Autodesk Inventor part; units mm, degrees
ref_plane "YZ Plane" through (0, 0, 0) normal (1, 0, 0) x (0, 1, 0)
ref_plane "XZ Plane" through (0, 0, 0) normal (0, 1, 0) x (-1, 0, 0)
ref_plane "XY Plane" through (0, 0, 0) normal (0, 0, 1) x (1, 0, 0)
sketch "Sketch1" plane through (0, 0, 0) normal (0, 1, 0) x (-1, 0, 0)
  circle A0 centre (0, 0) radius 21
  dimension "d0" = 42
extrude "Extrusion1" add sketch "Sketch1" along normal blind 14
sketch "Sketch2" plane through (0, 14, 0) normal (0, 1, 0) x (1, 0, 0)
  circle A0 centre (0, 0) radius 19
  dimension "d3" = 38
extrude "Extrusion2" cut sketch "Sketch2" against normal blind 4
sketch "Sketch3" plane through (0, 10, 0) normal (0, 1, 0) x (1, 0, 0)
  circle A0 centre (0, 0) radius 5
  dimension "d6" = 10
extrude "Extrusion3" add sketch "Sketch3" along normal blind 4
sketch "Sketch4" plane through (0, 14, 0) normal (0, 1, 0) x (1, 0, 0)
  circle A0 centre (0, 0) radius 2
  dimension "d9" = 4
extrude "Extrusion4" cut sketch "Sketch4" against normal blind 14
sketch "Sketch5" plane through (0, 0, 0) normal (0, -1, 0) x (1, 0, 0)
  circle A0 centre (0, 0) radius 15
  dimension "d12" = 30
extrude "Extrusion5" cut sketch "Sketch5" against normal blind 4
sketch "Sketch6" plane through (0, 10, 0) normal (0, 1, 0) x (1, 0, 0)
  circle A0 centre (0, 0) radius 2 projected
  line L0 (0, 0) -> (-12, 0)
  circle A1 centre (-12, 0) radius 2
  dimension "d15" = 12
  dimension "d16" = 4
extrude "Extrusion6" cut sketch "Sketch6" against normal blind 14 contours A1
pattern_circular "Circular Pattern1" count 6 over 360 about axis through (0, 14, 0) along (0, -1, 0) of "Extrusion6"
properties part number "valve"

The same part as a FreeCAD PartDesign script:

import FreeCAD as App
import Part
import Sketcher
Q = App.Units.Quantity

doc = App.newDocument("Part")
body = doc.addObject("PartDesign::Body", "Body")

sketch1 = doc.addObject("Sketcher::SketchObject", "Sketch")
body.addObject(sketch1)
sketch1.AttachmentSupport = (doc.XZ_Plane, [""])
sketch1.MapMode = "FlatFace"
sketch1.addGeometry(Part.Circle(App.Vector(0, 0, 0), App.Vector(0, 0, 1), 21), False)
sketch1.addConstraint([
    Sketcher.Constraint("Coincident", 0, 3, -1, 1),
    Sketcher.Constraint("Diameter", 0, Q("42 mm")),
])
pad1 = doc.addObject("PartDesign::Pad", "Pad")
body.addObject(pad1)
pad1.Profile = sketch1
pad1.Length = 14
pad1.Reversed = True

sketch2 = doc.addObject("Sketcher::SketchObject", "Sketch001")
body.addObject(sketch2)
sketch2.AttachmentSupport = (doc.XZ_Plane, [""])
sketch2.MapMode = "FlatFace"
sketch2.AttachmentOffset = App.Placement(App.Vector(0, 0, -14), App.Rotation())
sketch2.addGeometry(Part.Circle(App.Vector(0, 0, 0), App.Vector(0, 0, 1), 19), False)
sketch2.addConstraint([
    Sketcher.Constraint("Coincident", 0, 3, -1, 1),
    Sketcher.Constraint("Diameter", 0, Q("38 mm")),
])
pocket1 = doc.addObject("PartDesign::Pocket", "Pocket")
body.addObject(pocket1)
pocket1.Profile = sketch2
pocket1.Length = 4
pocket1.Reversed = True

sketch3 = doc.addObject("Sketcher::SketchObject", "Sketch002")
body.addObject(sketch3)
sketch3.AttachmentSupport = (doc.XZ_Plane, [""])
sketch3.MapMode = "FlatFace"
sketch3.AttachmentOffset = App.Placement(App.Vector(0, 0, -10), App.Rotation())
sketch3.addGeometry(Part.Circle(App.Vector(0, 0, 0), App.Vector(0, 0, 1), 5), False)
sketch3.addConstraint([
    Sketcher.Constraint("Coincident", 0, 3, -1, 1),
    Sketcher.Constraint("Diameter", 0, Q("10 mm")),
])
pad2 = doc.addObject("PartDesign::Pad", "Pad001")
body.addObject(pad2)
pad2.Profile = sketch3
pad2.Length = 4
pad2.Reversed = True

sketch4 = doc.addObject("Sketcher::SketchObject", "Sketch003")
body.addObject(sketch4)
sketch4.AttachmentSupport = (doc.XZ_Plane, [""])
sketch4.MapMode = "FlatFace"
sketch4.AttachmentOffset = App.Placement(App.Vector(0, 0, -14), App.Rotation())
sketch4.addGeometry(Part.Circle(App.Vector(0, 0, 0), App.Vector(0, 0, 1), 2), False)
sketch4.addConstraint([
    Sketcher.Constraint("Coincident", 0, 3, -1, 1),
    Sketcher.Constraint("Diameter", 0, Q("4 mm")),
])
pocket2 = doc.addObject("PartDesign::Pocket", "Pocket001")
body.addObject(pocket2)
pocket2.Profile = sketch4
pocket2.Length = 14
pocket2.Reversed = True

sketch5 = doc.addObject("Sketcher::SketchObject", "Sketch004")
body.addObject(sketch5)
sketch5.AttachmentSupport = (doc.XZ_Plane, [""])
sketch5.MapMode = "FlatFace"
sketch5.addGeometry(Part.Circle(App.Vector(0, 0, 0), App.Vector(0, 0, 1), 15), False)
sketch5.addConstraint([
    Sketcher.Constraint("Coincident", 0, 3, -1, 1),
    Sketcher.Constraint("Diameter", 0, Q("30 mm")),
])
pocket3 = doc.addObject("PartDesign::Pocket", "Pocket002")
body.addObject(pocket3)
pocket3.Profile = sketch5
pocket3.Length = 4

sketch6 = doc.addObject("Sketcher::SketchObject", "Sketch005")
body.addObject(sketch6)
sketch6.AttachmentSupport = (doc.XZ_Plane, [""])
sketch6.MapMode = "FlatFace"
sketch6.AttachmentOffset = App.Placement(App.Vector(0, 0, -10), App.Rotation())
sketch6.addGeometry(Part.Circle(App.Vector(-12, 0, 0), App.Vector(0, 0, 1), 2), False)
sketch6.addConstraint([
    Sketcher.Constraint("PointOnObject", 0, 3, -1),
    Sketcher.Constraint("Diameter", 0, Q("4 mm")),
    Sketcher.Constraint("DistanceX", 0, 3, -1, 1, Q("12 mm")),
])
pocket4 = doc.addObject("PartDesign::Pocket", "Pocket003")
body.addObject(pocket4)
pocket4.Profile = sketch6
pocket4.Length = 14
pocket4.Reversed = True
doc.recompute()

polarpattern = doc.addObject("PartDesign::PolarPattern", "PolarPattern")
body.addObject(polarpattern)
polarpattern.Originals = [pocket4]
polarpattern.Axis = (doc.Y_Axis, [""])
polarpattern.Angle = 360
polarpattern.Occurrences = 6
body.Tip = polarpattern

doc.recompute()
